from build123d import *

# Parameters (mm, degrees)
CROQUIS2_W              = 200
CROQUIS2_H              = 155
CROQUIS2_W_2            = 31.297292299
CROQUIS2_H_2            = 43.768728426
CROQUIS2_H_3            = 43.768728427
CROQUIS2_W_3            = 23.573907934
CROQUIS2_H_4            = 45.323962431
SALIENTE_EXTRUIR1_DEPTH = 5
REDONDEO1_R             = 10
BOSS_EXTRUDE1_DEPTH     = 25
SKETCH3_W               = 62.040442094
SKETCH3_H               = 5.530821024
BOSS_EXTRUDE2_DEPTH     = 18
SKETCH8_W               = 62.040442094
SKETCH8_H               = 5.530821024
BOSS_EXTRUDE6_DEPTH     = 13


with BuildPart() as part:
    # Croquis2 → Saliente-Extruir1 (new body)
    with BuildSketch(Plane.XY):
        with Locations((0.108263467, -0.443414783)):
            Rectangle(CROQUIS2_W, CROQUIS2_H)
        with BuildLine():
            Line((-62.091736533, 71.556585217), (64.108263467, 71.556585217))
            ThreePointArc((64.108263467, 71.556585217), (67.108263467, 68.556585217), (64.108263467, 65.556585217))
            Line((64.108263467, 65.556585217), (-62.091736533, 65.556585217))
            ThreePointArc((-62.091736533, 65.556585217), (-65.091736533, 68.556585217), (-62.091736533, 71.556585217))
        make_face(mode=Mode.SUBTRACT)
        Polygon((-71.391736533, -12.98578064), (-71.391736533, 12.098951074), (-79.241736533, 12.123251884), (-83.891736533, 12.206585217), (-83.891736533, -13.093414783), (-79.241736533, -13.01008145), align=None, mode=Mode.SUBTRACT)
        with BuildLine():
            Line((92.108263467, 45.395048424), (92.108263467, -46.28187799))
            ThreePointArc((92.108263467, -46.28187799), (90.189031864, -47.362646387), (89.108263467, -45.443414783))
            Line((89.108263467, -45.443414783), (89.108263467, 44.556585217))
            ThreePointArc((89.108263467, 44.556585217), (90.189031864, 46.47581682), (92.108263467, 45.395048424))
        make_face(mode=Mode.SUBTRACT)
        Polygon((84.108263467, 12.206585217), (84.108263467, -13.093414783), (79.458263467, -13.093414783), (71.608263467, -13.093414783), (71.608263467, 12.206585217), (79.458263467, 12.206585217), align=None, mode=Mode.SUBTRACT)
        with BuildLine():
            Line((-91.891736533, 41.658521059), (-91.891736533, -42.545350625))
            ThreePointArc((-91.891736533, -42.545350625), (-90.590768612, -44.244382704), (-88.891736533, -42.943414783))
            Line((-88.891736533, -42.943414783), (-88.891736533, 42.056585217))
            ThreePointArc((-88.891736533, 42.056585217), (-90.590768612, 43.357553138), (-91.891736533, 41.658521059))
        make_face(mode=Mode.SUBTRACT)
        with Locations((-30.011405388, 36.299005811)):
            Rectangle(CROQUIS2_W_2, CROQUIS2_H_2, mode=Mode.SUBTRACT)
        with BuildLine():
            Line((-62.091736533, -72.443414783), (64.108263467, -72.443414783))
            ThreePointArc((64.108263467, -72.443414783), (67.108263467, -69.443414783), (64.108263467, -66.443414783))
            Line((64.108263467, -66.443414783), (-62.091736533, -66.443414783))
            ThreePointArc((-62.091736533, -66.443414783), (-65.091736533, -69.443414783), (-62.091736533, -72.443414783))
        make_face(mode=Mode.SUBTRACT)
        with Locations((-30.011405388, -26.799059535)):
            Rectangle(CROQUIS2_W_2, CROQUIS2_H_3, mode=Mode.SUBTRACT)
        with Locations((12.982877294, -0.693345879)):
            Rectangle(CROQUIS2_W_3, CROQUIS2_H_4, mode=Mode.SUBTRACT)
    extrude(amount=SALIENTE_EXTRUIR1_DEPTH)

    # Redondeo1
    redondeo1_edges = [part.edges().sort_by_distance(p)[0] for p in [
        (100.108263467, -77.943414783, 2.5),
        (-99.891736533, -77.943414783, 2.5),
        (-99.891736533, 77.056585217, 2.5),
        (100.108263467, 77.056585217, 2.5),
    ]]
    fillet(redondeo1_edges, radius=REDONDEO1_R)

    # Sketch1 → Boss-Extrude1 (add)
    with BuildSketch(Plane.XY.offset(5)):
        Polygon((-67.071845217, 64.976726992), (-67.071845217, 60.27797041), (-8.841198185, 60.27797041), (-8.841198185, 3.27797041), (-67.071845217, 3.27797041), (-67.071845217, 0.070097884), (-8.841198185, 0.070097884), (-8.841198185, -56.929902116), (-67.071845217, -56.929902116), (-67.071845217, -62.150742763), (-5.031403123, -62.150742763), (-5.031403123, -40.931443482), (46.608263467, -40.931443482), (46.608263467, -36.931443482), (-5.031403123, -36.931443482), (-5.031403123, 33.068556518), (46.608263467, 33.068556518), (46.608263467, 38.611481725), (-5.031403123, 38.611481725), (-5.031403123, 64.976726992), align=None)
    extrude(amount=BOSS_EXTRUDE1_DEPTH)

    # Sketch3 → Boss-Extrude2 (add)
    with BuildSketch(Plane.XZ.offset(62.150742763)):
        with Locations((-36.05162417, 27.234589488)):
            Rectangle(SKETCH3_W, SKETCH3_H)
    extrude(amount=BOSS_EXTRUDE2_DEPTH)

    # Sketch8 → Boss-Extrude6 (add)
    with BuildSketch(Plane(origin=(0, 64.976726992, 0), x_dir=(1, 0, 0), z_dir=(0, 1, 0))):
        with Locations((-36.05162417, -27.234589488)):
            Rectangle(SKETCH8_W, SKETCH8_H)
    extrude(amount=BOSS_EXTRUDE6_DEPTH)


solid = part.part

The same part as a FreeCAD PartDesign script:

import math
import FreeCAD as App
import Part
import Sketcher
Q = App.Units.Quantity


def edges_at(feature, points):
    """Names of the edges that pass closest to the given points."""
    edges = feature.Shape.Edges
    near = lambda p: min(range(len(edges)), key=lambda i: edges[i].distToShape(Part.Vertex(*p))[0])
    return sorted({f"Edge{near(p) + 1}" for p in points})


def add_polygon(sketch, points):
    """Adds a closed chain of lines whose ends are joined by coincident constraints."""
    first, n = sketch.GeometryCount, len(points)
    for a, b in zip(points, points[1:] + points[:1]):
        sketch.addGeometry(Part.LineSegment(App.Vector(*a, 0), App.Vector(*b, 0)), False)
    for i in range(n):
        sketch.addConstraint(Sketcher.Constraint("Coincident", first + i, 2, first + (i + 1) % n, 1))

doc = App.newDocument("Part")
body = doc.addObject("PartDesign::Body", "Body")

# Sketch on XY plane
sketch1 = doc.addObject("Sketcher::SketchObject", "Sketch")
body.addObject(sketch1)
sketch1.AttachmentSupport = (doc.XY_Plane, [""])
sketch1.MapMode = "FlatFace"
add_polygon(sketch1, [(-99.9, 77.1), (-99.9, -77.9), (100.1, -77.9), (100.1, 77.1)])  # lines 0-3
add_polygon(sketch1, [(-14.4, -48.7), (-45.7, -48.7), (-45.7, -4.9), (-14.4, -4.9)])  # lines 4-7
sketch1.addGeometry(Part.LineSegment(App.Vector(64.1, -72.4, 0), App.Vector(-62.1, -72.4, 0)), False)  # 8
sketch1.addGeometry(Part.ArcOfCircle(Part.Circle(App.Vector(-62.1, -69.4, 0), App.Vector(0, 0, 1), 3), math.radians(90), math.radians(270)), False)  # 9
sketch1.addGeometry(Part.LineSegment(App.Vector(-62.1, -66.4, 0), App.Vector(64.1, -66.4, 0)), False)  # 10
sketch1.addGeometry(Part.ArcOfCircle(Part.Circle(App.Vector(64.1, -69.4, 0), App.Vector(0, 0, 1), 3), math.radians(-90), math.radians(90)), False)  # 11
add_polygon(sketch1, [(24.8, -23.4), (1.2, -23.4), (1.2, 22), (24.8, 22)])  # lines 12-15
sketch1.addGeometry(Part.ArcOfCircle(Part.Circle(App.Vector(90.6, 45, 0), App.Vector(0, 0, 1), 1.6), math.radians(16), math.radians(196)), False)  # 16
sketch1.addGeometry(Part.LineSegment(App.Vector(92.1, 45.4, 0), App.Vector(92.1, -46.3, 0)), False)  # 17
sketch1.addGeometry(Part.ArcOfCircle(Part.Circle(App.Vector(90.6, -45.9, 0), App.Vector(0, 0, 1), 1.6), math.radians(164), math.radians(344)), False)  # 18
sketch1.addGeometry(Part.LineSegment(App.Vector(89.1, -45.4, 0), App.Vector(89.1, 44.6, 0)), False)  # 19
sketch1.addGeometry(Part.LineSegment(App.Vector(-91.9, -42.5, 0), App.Vector(-91.9, 41.7, 0)), False)  # 20
sketch1.addGeometry(Part.ArcOfCircle(Part.Circle(App.Vector(-90.4, 41.9, 0), App.Vector(0, 0, 1), 1.5), math.radians(8), math.radians(188)), False)  # 21
sketch1.addGeometry(Part.LineSegment(App.Vector(-88.9, 42.1, 0), App.Vector(-88.9, -42.9, 0)), False)  # 22
sketch1.addGeometry(Part.ArcOfCircle(Part.Circle(App.Vector(-90.4, -42.7, 0), App.Vector(0, 0, 1), 1.5), math.radians(172), math.radians(352)), False)  # 23
add_polygon(sketch1, [(-71.4, 12.1), (-71.4, -13), (-79.2, -13), (-83.9, -13.1), (-83.9, 12.2), (-79.2, 12.1)])  # lines 24-29
add_polygon(sketch1, [(-14.4, 14.4), (-45.7, 14.4), (-45.7, 58.2), (-14.4, 58.2)])  # lines 30-33
add_polygon(sketch1, [(71.6, 12.2), (84.1, 12.2), (84.1, -13.1), (71.6, -13.1)])  # lines 34-37
sketch1.addGeometry(Part.ArcOfCircle(Part.Circle(App.Vector(-62.1, 68.6, 0), App.Vector(0, 0, 1), 3), math.radians(90), math.radians(270)), False)  # 38
sketch1.addGeometry(Part.LineSegment(App.Vector(-62.1, 71.6, 0), App.Vector(64.1, 71.6, 0)), False)  # 39
sketch1.addGeometry(Part.ArcOfCircle(Part.Circle(App.Vector(64.1, 68.6, 0), App.Vector(0, 0, 1), 3), math.radians(-90), math.radians(90)), False)  # 40
sketch1.addGeometry(Part.LineSegment(App.Vector(64.1, 65.6, 0), App.Vector(-62.1, 65.6, 0)), False)  # 41
sketch1.addConstraint([
    Sketcher.Constraint("Tangent", 8, 2, 9, 2),
    Sketcher.Constraint("Tangent", 9, 1, 10, 1),
    Sketcher.Constraint("Tangent", 10, 2, 11, 2),
    Sketcher.Constraint("Tangent", 11, 1, 8, 1),
    Sketcher.Constraint("Coincident", 16, 1, 17, 1),
    Sketcher.Constraint("Coincident", 17, 2, 18, 2),
    Sketcher.Constraint("Coincident", 18, 1, 19, 1),
    Sketcher.Constraint("Coincident", 19, 2, 16, 2),
    Sketcher.Constraint("Coincident", 20, 2, 21, 2),
    Sketcher.Constraint("Coincident", 21, 1, 22, 1),
    Sketcher.Constraint("Coincident", 22, 2, 23, 2),
    Sketcher.Constraint("Coincident", 23, 1, 20, 1),
    Sketcher.Constraint("Tangent", 38, 1, 39, 1),
    Sketcher.Constraint("Tangent", 39, 2, 40, 2),
    Sketcher.Constraint("Tangent", 40, 1, 41, 1),
    Sketcher.Constraint("Tangent", 41, 2, 38, 2),
    Sketcher.Constraint("Vertical", 0),
    Sketcher.Constraint("Horizontal", 1),
    Sketcher.Constraint("Vertical", 2),
    Sketcher.Constraint("Horizontal", 3),
    Sketcher.Constraint("Horizontal", 4),
    Sketcher.Constraint("Vertical", 5),
    Sketcher.Constraint("Horizontal", 6),
    Sketcher.Constraint("Vertical", 7),
    Sketcher.Constraint("Horizontal", 8),
    Sketcher.Constraint("Horizontal", 10),
    Sketcher.Constraint("Horizontal", 12),
    Sketcher.Constraint("Vertical", 13),
    Sketcher.Constraint("Horizontal", 14),
    Sketcher.Constraint("Vertical", 15),
    Sketcher.Constraint("Vertical", 17),
    Sketcher.Constraint("Vertical", 19),
    Sketcher.Constraint("Vertical", 20),
    Sketcher.Constraint("Vertical", 22),
    Sketcher.Constraint("Vertical", 24),
    Sketcher.Constraint("Vertical", 27),
    Sketcher.Constraint("Horizontal", 30),
    Sketcher.Constraint("Vertical", 31),
    Sketcher.Constraint("Horizontal", 32),
    Sketcher.Constraint("Vertical", 33),
    Sketcher.Constraint("Horizontal", 34),
    Sketcher.Constraint("Vertical", 35),
    Sketcher.Constraint("Horizontal", 36),
    Sketcher.Constraint("Vertical", 37),
    Sketcher.Constraint("Horizontal", 39),
    Sketcher.Constraint("Horizontal", 41),
    Sketcher.Constraint("Equal", 16, 18),
    Sketcher.Constraint("Equal", 21, 23),
    Sketcher.Constraint("Equal", 11, 38),
    Sketcher.Constraint("Horizontal", 27, 2, 34, 2),
    Sketcher.Constraint("Horizontal", 26, 2, 35, 2),
    Sketcher.Constraint("Vertical", 16, 3, 18, 3),
    Sketcher.Constraint("Vertical", 21, 3, 23, 3),
    Sketcher.Constraint("Vertical", 9, 3, 38, 3),
    Sketcher.Constraint("Vertical", 11, 3, 40, 3),
    Sketcher.Constraint("Vertical", 25, 2, 28, 2),
    Sketcher.Constraint("Vertical", 5, 2, 30, 2),
    Sketcher.Constraint("Vertical", 7, 2, 32, 2),
    Sketcher.Constraint("Equal", 7, 31),
    Sketcher.Constraint("Equal", 26, 28),
    Sketcher.Constraint("Radius", 9, Q("3 mm")),
    Sketcher.Constraint("DistanceX", 1, 1, 1, 2, Q("200 mm")),
    Sketcher.Constraint("DistanceY", 0, 2, 0, 1, Q("155 mm")),
    Sketcher.Constraint("DistanceY", 19, 1, 19, 2, Q("90 mm")),
    Sketcher.Constraint("DistanceY", 22, 2, 22, 1, Q("85 mm")),
    Sketcher.Constraint("DistanceX", 8, 2, 8, 1, Q("126.2 mm")),
    Sketcher.Constraint("DistanceX", 34, 1, 34, 2, Q("12.5 mm")),
    Sketcher.Constraint("DistanceY", 27, 1, 27, 2, Q("25.3 mm")),
    Sketcher.Constraint("DistanceX", 21, 3, 16, 3, Q("181 mm")),
    Sketcher.Constraint("DistanceY", 9, 3, 38, 3, Q("138 mm")),
    Sketcher.Constraint("DistanceX", 0, 2, 11, 3, Q("164 mm")),
    Sketcher.Constraint("DistanceX", 16, 1, 2, 2, Q("8 mm")),
    Sketcher.Constraint("DistanceX", 18, 1, 17, 2, Q("3 mm")),
    Sketcher.Constraint("DistanceY", 10, 2, 18, 1, Q("21 mm")),
    Sketcher.Constraint("DistanceX", 3, 2, 20, 2, Q("8 mm")),
    Sketcher.Constraint("DistanceX", 20, 2, 21, 1, Q("3 mm")),
    Sketcher.Constraint("DistanceY", 21, 1, 3, 2, Q("35 mm")),
    Sketcher.Constraint("DistanceX", 23, 3, 24, 2, Q("19 mm")),
    Sketcher.Constraint("DistanceX", 22, 2, 26, 2, Q("5 mm")),
    Sketcher.Constraint("DistanceX", 34, 2, 19, 2, Q("5 mm")),
    Sketcher.Constraint("DistanceX", 36, 2, 18, 3, Q("19 mm")),
    Sketcher.Constraint("DistanceY", 0, 2, 9, 3, Q("8.5 mm")),
    Sketcher.Constraint("DistanceX", 25, 2, 24, 2, Q("7.85 mm")),
    Sketcher.Constraint("DistanceY", 22, 2, 26, 2, Q("29.85 mm")),
    Sketcher.Constraint("Radius", 16, Q("1.557484 mm")),
    Sketcher.Constraint("Radius", 21, Q("1.513147 mm")),
    Sketcher.Constraint("DistanceY", 5, 1, 5, 2, Q("43.768728 mm")),
    Sketcher.Constraint("DistanceY", 24, 2, 24, 1, Q("25.084732 mm")),
    Sketcher.Constraint("DistanceY", 25, 2, 24, 2, Q("0.024301 mm")),
    Sketcher.Constraint("DistanceY", 23, 3, 25, 2, Q("29.734301 mm")),
    Sketcher.Constraint("DistanceX", 4, 2, 4, 1, Q("31.297292 mm")),
    Sketcher.Constraint("DistanceX", 12, 2, 12, 1, Q("23.573908 mm")),
    Sketcher.Constraint("DistanceY", 13, 1, 13, 2, Q("45.323962 mm")),
    Sketcher.Constraint("DistanceX", 4, 2, -1, 1, Q("45.660052 mm")),
    Sketcher.Constraint("DistanceX", -1, 1, 14, 2, Q("24.769831 mm")),
    Sketcher.Constraint("DistanceY", -1, 1, 16, 1, Q("45.395048 mm")),
    Sketcher.Constraint("DistanceY", -1, 1, 30, 2, Q("14.414642 mm")),
    Sketcher.Constraint("DistanceY", 9, 3, 4, 2, Q("20.759991 mm")),
    Sketcher.Constraint("DistanceY", 12, 2, 6, 2, Q("18.440632 mm")),
    Sketcher.Constraint("DistanceX", 12, 2, 10, 2, Q("62.91234 mm")),
])
pad1 = doc.addObject("PartDesign::Pad", "Pad")
body.addObject(pad1)
pad1.Profile = sketch1
pad1.Length = 5
doc.recompute()

fillet = doc.addObject("PartDesign::Fillet", "Fillet")
body.addObject(fillet)
fillet.Base = (pad1, edges_at(pad1, [
    (100.108, -77.943, 2.5),
    (-99.892, -77.943, 2.5),
    (-99.892, 77.057, 2.5),
    (100.108, 77.057, 2.5),
]))
fillet.Radius = 10

# Sketch on XY plane
sketch2 = doc.addObject("Sketcher::SketchObject", "Sketch001")
body.addObject(sketch2)
sketch2.AttachmentSupport = (doc.XY_Plane, [""])
sketch2.MapMode = "FlatFace"
sketch2.AttachmentOffset = App.Placement(App.Vector(0, 0, 5), App.Rotation())
add_polygon(sketch2, [(-67.1, 65), (-67.1, 60.3), (-8.8, 60.3), (-8.8, 3.3), (-67.1, 3.3), (-67.1, 0.1), (-8.8, 0.1), (-8.8, -56.9), (-67.1, -56.9), (-67.1, -62.2), (-5, -62.2), (-5, -40.9), (46.6, -40.9), (46.6, -36.9), (-5, -36.9), (-5, 33.1), (46.6, 33.1), (46.6, 38.6), (-5, 38.6), (-5, 65)])  # lines 0-19
sketch2.addConstraint([
    Sketcher.Constraint("Vertical", 0),
    Sketcher.Constraint("Horizontal", 1),
    Sketcher.Constraint("Vertical", 2),
    Sketcher.Constraint("Horizontal", 3),
    Sketcher.Constraint("Vertical", 4),
    Sketcher.Constraint("Horizontal", 5),
    Sketcher.Constraint("Vertical", 6),
    Sketcher.Constraint("Horizontal", 7),
    Sketcher.Constraint("Vertical", 8),
    Sketcher.Constraint("Horizontal", 9),
    Sketcher.Constraint("Vertical", 10),
    Sketcher.Constraint("Horizontal", 11),
    Sketcher.Constraint("Vertical", 12),
    Sketcher.Constraint("Horizontal", 13),
    Sketcher.Constraint("Vertical", 14),
    Sketcher.Constraint("Horizontal", 15),
    Sketcher.Constraint("Vertical", 16),
    Sketcher.Constraint("Horizontal", 17),
    Sketcher.Constraint("Vertical", 18),
    Sketcher.Constraint("Horizontal", 19),
    Sketcher.Constraint("Vertical", 0, 2, 3, 2),
    Sketcher.Constraint("Vertical", 2, 2, 5, 2),
    Sketcher.Constraint("Vertical", 4, 2, 7, 2),
    Sketcher.Constraint("Vertical", 10, 2, 13, 2),
    Sketcher.Constraint("Vertical", 12, 2, 15, 2),
    Sketcher.Constraint("Vertical", 14, 2, 17, 2),
    Sketcher.Constraint("Equal", 2, 6),
    Sketcher.Constraint("DistanceY", 2, 2, 2, 1, Q("57 mm")),
    Sketcher.Constraint("DistanceY", 12, 1, 12, 2, Q("4 mm")),
    Sketcher.Constraint("DistanceY", 14, 1, 14, 2, Q("70 mm")),
    Sketcher.Constraint("DistanceY", 10, 1, 10, 2, Q("21.219299 mm")),
    Sketcher.Constraint("DistanceY", 8, 2, 8, 1, Q("5.220841 mm")),
    Sketcher.Constraint("DistanceX", 1, 2, -1, 1, Q("8.841198 mm")),
    Sketcher.Constraint("DistanceX", 1, 1, 1, 2, Q("58.230647 mm")),
    Sketcher.Constraint("DistanceX", 9, 1, 9, 2, Q("62.040442 mm")),
    Sketcher.Constraint("DistanceX", 11, 1, 11, 2, Q("51.639667 mm")),
    Sketcher.Constraint("DistanceY", 0, 2, 0, 1, Q("4.698757 mm")),
    Sketcher.Constraint("DistanceY", 4, 2, 4, 1, Q("3.207873 mm")),
    Sketcher.Constraint("DistanceY", 16, 1, 16, 2, Q("5.542925 mm")),
    Sketcher.Constraint("DistanceY", -1, 1, 0, 2, Q("60.27797 mm")),
])
pad2 = doc.addObject("PartDesign::Pad", "Pad001")
body.addObject(pad2)
pad2.Profile = sketch2
pad2.Length = 25

# Sketch on XZ plane
sketch3 = doc.addObject("Sketcher::SketchObject", "Sketch002")
body.addObject(sketch3)
sketch3.AttachmentSupport = (doc.XZ_Plane, [""])
sketch3.MapMode = "FlatFace"
sketch3.AttachmentOffset = App.Placement(App.Vector(0, 0, 62.150743), App.Rotation())
add_polygon(sketch3, [(-67, 30), (-67, 24), (-5, 24), (-5, 30)])  # lines 0-3
sketch3.addConstraint([
    Sketcher.Constraint("Vertical", 0),
    Sketcher.Constraint("Horizontal", 1),
    Sketcher.Constraint("Vertical", 2),
    Sketcher.Constraint("Horizontal", 3),
    Sketcher.Constraint("DistanceY", -1, 1, 2, 2, Q("30 mm")),
    Sketcher.Constraint("DistanceY", 0, 2, 0, 1, Q("5.530821 mm")),
    Sketcher.Constraint("DistanceX", 1, 1, 1, 2, Q("62.040442 mm")),
    Sketcher.Constraint("DistanceX", 0, 2, -1, 1, Q("67.071845 mm")),
])
pad3 = doc.addObject("PartDesign::Pad", "Pad002")
body.addObject(pad3)
pad3.Profile = sketch3
pad3.Length = 18

# Sketch on XZ plane
sketch4 = doc.addObject("Sketcher::SketchObject", "Sketch003")
body.addObject(sketch4)
sketch4.AttachmentSupport = (doc.XZ_Plane, [""])
sketch4.MapMode = "FlatFace"
sketch4.AttachmentOffset = App.Placement(App.Vector(0, 0, -64.976727), App.Rotation())
add_polygon(sketch4, [(-67, 24), (-67, 30), (-5, 30), (-5, 24)])  # lines 0-3
sketch4.addConstraint([
    Sketcher.Constraint("Vertical", 0),
    Sketcher.Constraint("Horizontal", 1),
    Sketcher.Constraint("Vertical", 2),
    Sketcher.Constraint("Horizontal", 3),
    Sketcher.Constraint("DistanceY", -1, 1, 0, 2, Q("30 mm")),
    Sketcher.Constraint("DistanceY", 0, 1, 0, 2, Q("5.530821 mm")),
    Sketcher.Constraint("DistanceX", 1, 1, 1, 2, Q("62.040442 mm")),
    Sketcher.Constraint("DistanceX", 0, 2, -1, 1, Q("67.071845 mm")),
])
pad4 = doc.addObject("PartDesign::Pad", "Pad003")
body.addObject(pad4)
pad4.Profile = sketch4
pad4.Length = 13
pad4.Reversed = True

doc.recompute()
